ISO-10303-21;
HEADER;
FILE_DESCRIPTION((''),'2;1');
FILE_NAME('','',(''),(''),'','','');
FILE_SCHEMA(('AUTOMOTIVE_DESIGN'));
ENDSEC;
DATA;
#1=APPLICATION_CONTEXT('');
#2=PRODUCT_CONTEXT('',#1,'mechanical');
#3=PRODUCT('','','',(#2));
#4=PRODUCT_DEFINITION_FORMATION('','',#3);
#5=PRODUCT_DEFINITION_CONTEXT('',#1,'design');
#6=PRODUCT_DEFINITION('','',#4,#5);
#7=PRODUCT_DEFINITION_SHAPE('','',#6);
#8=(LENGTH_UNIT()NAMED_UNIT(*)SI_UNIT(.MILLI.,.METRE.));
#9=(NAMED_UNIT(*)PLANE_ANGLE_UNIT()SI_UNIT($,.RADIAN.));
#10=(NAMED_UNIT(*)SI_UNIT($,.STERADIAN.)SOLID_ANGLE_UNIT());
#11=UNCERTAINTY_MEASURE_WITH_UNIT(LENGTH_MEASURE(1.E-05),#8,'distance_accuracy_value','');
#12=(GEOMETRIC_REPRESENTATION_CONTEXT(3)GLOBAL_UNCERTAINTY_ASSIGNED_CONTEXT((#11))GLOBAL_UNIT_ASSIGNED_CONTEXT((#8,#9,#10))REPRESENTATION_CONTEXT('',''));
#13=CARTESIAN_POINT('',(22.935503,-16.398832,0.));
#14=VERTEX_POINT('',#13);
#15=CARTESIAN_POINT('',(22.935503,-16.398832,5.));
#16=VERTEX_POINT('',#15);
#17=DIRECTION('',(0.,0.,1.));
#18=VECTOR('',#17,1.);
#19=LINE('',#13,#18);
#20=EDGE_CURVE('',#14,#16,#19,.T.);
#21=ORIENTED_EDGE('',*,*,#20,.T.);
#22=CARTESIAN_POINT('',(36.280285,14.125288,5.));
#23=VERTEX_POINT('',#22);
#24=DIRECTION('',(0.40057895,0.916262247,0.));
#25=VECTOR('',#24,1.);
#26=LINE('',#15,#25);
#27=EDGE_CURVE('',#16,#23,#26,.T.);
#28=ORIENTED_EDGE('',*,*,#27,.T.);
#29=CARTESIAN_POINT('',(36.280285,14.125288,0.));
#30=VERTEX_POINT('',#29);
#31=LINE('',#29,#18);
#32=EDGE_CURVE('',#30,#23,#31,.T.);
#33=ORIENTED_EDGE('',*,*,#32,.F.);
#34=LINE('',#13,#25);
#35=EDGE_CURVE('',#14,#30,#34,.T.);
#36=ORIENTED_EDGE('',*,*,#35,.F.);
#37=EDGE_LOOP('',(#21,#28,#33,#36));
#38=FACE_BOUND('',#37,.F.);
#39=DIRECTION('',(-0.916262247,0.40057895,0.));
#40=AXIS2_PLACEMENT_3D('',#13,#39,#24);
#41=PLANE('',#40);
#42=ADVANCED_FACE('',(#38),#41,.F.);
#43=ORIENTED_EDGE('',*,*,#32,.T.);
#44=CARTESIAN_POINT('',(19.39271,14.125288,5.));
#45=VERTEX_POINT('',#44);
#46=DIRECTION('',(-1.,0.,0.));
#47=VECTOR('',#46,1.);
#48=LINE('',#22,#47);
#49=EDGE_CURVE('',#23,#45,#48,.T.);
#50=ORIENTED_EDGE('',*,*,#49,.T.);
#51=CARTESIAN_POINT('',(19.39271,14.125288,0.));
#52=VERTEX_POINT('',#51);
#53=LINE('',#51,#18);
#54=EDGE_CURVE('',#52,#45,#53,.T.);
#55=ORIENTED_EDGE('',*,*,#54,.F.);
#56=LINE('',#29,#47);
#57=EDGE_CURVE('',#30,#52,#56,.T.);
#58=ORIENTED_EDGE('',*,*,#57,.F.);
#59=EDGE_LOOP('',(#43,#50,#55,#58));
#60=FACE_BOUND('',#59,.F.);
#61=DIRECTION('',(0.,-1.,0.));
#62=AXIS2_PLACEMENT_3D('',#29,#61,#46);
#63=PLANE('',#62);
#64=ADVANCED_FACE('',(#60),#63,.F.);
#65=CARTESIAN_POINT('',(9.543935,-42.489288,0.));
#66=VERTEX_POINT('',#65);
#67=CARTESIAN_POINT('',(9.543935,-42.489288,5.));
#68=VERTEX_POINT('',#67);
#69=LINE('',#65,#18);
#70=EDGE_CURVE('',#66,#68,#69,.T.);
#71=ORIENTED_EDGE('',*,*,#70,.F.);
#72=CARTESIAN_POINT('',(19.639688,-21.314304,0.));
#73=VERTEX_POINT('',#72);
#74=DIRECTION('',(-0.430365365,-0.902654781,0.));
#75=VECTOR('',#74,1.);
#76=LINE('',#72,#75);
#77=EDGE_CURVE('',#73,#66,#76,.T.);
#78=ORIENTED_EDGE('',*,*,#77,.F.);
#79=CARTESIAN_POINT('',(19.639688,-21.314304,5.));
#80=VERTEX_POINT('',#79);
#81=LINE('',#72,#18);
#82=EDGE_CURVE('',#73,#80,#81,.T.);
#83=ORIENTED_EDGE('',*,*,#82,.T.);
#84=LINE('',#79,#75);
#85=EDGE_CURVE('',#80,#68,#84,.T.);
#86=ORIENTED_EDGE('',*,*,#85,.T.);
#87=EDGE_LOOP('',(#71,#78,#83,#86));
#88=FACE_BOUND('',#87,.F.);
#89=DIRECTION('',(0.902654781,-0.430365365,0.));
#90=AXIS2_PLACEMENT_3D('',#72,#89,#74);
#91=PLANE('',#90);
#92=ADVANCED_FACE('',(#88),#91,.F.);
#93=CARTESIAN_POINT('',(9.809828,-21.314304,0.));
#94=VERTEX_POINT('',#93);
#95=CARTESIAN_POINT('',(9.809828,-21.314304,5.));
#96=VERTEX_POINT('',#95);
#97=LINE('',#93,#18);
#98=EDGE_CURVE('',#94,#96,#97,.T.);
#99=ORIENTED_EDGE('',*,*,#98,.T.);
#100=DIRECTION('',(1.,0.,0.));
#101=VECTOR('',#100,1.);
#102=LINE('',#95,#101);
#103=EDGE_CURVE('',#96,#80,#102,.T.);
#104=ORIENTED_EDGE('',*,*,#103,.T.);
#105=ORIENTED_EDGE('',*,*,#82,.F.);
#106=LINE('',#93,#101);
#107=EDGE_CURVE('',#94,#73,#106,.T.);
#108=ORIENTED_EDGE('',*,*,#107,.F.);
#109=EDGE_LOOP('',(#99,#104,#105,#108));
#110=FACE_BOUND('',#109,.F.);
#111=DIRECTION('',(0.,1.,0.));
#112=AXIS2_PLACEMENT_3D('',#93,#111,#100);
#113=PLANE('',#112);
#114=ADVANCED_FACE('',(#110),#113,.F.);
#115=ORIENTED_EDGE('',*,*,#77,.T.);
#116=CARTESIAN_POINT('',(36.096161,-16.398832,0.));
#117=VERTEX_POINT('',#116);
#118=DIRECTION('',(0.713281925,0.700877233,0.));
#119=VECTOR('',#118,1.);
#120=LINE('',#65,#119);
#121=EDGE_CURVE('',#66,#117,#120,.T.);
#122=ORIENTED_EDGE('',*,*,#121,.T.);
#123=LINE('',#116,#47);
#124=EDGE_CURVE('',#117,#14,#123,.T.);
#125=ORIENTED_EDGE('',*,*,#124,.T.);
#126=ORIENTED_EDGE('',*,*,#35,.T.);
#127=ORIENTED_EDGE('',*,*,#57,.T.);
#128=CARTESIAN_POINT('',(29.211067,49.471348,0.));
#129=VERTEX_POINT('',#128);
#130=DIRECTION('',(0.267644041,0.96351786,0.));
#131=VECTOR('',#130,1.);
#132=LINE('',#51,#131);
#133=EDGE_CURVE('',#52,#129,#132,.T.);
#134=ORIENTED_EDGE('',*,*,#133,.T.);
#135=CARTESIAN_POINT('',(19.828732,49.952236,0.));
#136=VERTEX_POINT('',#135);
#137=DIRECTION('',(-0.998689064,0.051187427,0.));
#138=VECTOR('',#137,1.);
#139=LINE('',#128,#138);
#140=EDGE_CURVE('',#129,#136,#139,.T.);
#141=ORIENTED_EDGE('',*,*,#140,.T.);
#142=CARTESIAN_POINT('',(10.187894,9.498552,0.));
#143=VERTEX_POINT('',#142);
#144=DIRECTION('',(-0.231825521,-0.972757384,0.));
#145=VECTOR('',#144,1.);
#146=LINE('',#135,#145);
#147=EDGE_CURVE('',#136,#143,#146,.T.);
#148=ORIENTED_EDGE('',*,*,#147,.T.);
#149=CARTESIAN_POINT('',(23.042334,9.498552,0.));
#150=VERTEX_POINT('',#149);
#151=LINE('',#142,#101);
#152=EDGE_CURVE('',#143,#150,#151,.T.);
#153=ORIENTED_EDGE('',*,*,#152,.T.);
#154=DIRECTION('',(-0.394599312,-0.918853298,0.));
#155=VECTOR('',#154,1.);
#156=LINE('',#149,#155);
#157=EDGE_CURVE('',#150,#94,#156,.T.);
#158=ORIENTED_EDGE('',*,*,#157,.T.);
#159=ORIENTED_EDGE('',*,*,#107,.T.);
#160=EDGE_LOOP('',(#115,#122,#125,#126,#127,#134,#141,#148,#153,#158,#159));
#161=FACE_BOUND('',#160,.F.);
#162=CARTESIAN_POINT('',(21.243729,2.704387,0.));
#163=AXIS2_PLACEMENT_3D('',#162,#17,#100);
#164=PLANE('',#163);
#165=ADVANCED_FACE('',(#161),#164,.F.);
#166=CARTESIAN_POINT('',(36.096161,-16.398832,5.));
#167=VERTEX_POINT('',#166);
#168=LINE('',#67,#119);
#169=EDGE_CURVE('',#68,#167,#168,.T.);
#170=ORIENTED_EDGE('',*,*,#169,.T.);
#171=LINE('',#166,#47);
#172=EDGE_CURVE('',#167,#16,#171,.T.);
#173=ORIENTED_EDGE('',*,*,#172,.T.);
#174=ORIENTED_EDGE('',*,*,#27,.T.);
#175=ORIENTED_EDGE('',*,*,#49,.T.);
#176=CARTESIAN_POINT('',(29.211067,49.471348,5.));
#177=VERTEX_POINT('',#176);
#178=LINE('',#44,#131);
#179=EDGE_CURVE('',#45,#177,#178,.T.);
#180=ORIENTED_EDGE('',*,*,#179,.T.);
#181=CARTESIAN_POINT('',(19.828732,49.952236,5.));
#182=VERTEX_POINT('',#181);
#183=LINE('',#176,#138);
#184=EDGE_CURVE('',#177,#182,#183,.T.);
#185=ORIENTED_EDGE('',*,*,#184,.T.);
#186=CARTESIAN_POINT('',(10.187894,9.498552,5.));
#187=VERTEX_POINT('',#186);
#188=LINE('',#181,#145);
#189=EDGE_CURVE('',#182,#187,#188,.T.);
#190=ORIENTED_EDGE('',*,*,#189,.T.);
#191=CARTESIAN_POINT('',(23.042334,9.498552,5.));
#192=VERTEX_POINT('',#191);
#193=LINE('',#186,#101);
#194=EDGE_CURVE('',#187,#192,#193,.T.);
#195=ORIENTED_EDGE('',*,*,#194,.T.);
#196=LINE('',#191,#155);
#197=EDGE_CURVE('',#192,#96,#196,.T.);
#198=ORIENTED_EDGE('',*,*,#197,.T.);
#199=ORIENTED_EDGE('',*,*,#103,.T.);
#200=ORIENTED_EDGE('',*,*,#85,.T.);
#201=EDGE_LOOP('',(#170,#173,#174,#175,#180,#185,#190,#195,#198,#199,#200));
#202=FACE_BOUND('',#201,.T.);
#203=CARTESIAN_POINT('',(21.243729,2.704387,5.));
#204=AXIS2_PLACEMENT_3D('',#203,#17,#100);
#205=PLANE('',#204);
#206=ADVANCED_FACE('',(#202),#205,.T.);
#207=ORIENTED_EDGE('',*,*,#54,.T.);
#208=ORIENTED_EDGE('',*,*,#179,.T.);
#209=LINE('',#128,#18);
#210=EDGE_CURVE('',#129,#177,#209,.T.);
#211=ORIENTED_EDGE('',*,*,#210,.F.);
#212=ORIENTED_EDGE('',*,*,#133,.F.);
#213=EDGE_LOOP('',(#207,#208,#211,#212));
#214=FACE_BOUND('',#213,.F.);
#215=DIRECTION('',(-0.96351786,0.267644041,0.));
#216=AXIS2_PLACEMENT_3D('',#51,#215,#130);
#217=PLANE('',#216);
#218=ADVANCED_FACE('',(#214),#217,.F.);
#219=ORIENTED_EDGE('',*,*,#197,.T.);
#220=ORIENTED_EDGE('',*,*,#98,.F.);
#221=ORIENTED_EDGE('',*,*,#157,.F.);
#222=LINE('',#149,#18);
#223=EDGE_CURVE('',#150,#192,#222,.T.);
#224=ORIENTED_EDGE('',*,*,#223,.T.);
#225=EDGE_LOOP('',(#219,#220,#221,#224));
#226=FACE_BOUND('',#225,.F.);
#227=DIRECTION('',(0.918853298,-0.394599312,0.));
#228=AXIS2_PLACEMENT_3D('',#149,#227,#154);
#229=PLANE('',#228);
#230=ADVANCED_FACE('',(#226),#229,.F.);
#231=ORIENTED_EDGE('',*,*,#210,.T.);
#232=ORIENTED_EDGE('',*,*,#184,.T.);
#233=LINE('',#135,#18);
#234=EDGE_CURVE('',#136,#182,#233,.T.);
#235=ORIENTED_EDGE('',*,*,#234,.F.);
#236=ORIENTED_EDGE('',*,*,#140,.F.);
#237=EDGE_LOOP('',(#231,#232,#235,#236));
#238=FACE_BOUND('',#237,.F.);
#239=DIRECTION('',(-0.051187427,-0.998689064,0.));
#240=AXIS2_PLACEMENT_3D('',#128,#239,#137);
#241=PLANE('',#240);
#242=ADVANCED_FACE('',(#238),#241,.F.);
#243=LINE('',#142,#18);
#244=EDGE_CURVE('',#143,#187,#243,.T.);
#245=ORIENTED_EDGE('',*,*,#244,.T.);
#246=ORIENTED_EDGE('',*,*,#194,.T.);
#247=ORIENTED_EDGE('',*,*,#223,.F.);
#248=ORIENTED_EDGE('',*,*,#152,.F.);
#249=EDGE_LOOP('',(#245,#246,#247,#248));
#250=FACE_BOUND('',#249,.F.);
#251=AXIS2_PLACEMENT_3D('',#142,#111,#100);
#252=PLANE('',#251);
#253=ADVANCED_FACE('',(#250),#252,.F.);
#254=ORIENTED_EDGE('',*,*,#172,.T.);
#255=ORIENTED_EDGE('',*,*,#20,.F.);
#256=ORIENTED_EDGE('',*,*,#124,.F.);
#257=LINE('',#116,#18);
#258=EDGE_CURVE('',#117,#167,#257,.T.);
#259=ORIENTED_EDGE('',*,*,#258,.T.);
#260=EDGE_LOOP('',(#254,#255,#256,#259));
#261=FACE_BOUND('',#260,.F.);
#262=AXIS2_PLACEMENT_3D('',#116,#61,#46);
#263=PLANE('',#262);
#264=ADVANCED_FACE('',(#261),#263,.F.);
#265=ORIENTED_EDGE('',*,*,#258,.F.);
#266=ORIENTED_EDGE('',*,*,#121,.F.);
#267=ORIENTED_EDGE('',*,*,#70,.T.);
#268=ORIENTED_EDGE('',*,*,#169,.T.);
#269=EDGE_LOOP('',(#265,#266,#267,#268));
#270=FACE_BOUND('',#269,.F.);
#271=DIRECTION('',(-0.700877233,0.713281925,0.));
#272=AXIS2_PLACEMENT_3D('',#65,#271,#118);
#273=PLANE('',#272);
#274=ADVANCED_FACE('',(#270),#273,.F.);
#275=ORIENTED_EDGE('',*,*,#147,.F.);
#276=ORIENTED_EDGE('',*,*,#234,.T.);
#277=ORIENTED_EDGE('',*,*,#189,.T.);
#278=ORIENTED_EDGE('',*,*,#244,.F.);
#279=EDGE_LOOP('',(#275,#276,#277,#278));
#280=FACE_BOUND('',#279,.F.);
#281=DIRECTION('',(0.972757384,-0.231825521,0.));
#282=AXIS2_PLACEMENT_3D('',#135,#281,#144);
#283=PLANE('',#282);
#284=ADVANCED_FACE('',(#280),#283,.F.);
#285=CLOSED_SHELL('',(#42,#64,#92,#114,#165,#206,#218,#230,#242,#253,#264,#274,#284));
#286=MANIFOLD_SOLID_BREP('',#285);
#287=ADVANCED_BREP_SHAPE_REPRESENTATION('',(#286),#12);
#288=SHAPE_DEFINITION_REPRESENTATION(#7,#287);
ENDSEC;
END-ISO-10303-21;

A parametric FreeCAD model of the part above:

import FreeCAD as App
import Part
import Sketcher

V = App.Vector

doc = App.newDocument("Part")
body = doc.addObject("PartDesign::Body", "Body")

sketch1 = body.newObject("Sketcher::SketchObject", "Sketch")
sketch1.AttachmentSupport = (doc.getObject("XY_Plane"), [""])
sketch1.MapMode = "FlatFace"
sketch1.addGeometry([
    Part.LineSegment(V(20, 50, 0), V(10, 9, 0)),
    Part.LineSegment(V(10, 9, 0), V(23, 9, 0)),
    Part.LineSegment(V(23, 9, 0), V(10, -21, 0)),
    Part.LineSegment(V(10, -21, 0), V(20, -21, 0)),
    Part.LineSegment(V(20, -21, 0), V(10, -42, 0)),
    Part.LineSegment(V(10, -42, 0), V(36, -16, 0)),
    Part.LineSegment(V(36, -16, 0), V(23, -16, 0)),
    Part.LineSegment(V(23, -16, 0), V(36, 14, 0)),
    Part.LineSegment(V(36, 14, 0), V(19, 14, 0)),
    Part.LineSegment(V(19, 14, 0), V(29, 49, 0)),
    Part.LineSegment(V(29, 49, 0), V(20, 50, 0)),
], False)
sketch1.addConstraint([
    Sketcher.Constraint("Coincident", 0, 2, 1, 1),
    Sketcher.Constraint("Coincident", 1, 2, 2, 1),
    Sketcher.Constraint("Coincident", 2, 2, 3, 1),
    Sketcher.Constraint("Coincident", 3, 2, 4, 1),
    Sketcher.Constraint("Coincident", 4, 2, 5, 1),
    Sketcher.Constraint("Coincident", 5, 2, 6, 1),
    Sketcher.Constraint("Coincident", 6, 2, 7, 1),
    Sketcher.Constraint("Coincident", 7, 2, 8, 1),
    Sketcher.Constraint("Coincident", 8, 2, 9, 1),
    Sketcher.Constraint("Coincident", 9, 2, 10, 1),
    Sketcher.Constraint("Coincident", 10, 2, 0, 1),
    Sketcher.Constraint("Horizontal", 1),
    Sketcher.Constraint("Horizontal", 3),
    Sketcher.Constraint("Horizontal", 6),
    Sketcher.Constraint("Horizontal", 8),
    Sketcher.Constraint("DistanceX", 1, 1, 1, 2, 12.85444),
    Sketcher.Constraint("DistanceX", 3, 1, 3, 2, 9.82986),
    Sketcher.Constraint("DistanceX", 6, 2, 6, 1, 13.160658),
    Sketcher.Constraint("DistanceX", 4, 2, 1, 2, 13.498399),
    Sketcher.Constraint("Distance", 5, 37.225429),
    Sketcher.Constraint("Distance", 10, 9.394651),
    Sketcher.Constraint("DistanceX", 8, 2, 8, 1, 16.887575),
    Sketcher.Constraint("DistanceY", 4, 2, -1, 1, 42.489288),
    Sketcher.Constraint("DistanceX", -1, 1, 5, 2, 36.096161),
    Sketcher.Constraint("DistanceY", 5, 2, -1, 1, 16.398832),
    Sketcher.Constraint("DistanceX", -1, 1, 8, 2, 19.39271),
    Sketcher.Constraint("DistanceX", -1, 1, 10, 2, 19.828732),
    Sketcher.Constraint("DistanceY", 4, 2, 0, 2, 51.98784),
    Sketcher.Constraint("DistanceY", 5, 2, 7, 2, 30.52412),
    Sketcher.Constraint("DistanceY", 3, 2, 7, 2, 35.439592),
    Sketcher.Constraint("DistanceY", 7, 2, 9, 2, 35.34606),
    Sketcher.Constraint("DistanceY", 9, 2, 10, 2, 0.480888),
    Sketcher.Constraint("Distance", 2, 33.534032),
])
pad1 = body.newObject("PartDesign::Pad", "Pad")
pad1.Profile = sketch1
pad1.Length = 5

doc.recompute()
